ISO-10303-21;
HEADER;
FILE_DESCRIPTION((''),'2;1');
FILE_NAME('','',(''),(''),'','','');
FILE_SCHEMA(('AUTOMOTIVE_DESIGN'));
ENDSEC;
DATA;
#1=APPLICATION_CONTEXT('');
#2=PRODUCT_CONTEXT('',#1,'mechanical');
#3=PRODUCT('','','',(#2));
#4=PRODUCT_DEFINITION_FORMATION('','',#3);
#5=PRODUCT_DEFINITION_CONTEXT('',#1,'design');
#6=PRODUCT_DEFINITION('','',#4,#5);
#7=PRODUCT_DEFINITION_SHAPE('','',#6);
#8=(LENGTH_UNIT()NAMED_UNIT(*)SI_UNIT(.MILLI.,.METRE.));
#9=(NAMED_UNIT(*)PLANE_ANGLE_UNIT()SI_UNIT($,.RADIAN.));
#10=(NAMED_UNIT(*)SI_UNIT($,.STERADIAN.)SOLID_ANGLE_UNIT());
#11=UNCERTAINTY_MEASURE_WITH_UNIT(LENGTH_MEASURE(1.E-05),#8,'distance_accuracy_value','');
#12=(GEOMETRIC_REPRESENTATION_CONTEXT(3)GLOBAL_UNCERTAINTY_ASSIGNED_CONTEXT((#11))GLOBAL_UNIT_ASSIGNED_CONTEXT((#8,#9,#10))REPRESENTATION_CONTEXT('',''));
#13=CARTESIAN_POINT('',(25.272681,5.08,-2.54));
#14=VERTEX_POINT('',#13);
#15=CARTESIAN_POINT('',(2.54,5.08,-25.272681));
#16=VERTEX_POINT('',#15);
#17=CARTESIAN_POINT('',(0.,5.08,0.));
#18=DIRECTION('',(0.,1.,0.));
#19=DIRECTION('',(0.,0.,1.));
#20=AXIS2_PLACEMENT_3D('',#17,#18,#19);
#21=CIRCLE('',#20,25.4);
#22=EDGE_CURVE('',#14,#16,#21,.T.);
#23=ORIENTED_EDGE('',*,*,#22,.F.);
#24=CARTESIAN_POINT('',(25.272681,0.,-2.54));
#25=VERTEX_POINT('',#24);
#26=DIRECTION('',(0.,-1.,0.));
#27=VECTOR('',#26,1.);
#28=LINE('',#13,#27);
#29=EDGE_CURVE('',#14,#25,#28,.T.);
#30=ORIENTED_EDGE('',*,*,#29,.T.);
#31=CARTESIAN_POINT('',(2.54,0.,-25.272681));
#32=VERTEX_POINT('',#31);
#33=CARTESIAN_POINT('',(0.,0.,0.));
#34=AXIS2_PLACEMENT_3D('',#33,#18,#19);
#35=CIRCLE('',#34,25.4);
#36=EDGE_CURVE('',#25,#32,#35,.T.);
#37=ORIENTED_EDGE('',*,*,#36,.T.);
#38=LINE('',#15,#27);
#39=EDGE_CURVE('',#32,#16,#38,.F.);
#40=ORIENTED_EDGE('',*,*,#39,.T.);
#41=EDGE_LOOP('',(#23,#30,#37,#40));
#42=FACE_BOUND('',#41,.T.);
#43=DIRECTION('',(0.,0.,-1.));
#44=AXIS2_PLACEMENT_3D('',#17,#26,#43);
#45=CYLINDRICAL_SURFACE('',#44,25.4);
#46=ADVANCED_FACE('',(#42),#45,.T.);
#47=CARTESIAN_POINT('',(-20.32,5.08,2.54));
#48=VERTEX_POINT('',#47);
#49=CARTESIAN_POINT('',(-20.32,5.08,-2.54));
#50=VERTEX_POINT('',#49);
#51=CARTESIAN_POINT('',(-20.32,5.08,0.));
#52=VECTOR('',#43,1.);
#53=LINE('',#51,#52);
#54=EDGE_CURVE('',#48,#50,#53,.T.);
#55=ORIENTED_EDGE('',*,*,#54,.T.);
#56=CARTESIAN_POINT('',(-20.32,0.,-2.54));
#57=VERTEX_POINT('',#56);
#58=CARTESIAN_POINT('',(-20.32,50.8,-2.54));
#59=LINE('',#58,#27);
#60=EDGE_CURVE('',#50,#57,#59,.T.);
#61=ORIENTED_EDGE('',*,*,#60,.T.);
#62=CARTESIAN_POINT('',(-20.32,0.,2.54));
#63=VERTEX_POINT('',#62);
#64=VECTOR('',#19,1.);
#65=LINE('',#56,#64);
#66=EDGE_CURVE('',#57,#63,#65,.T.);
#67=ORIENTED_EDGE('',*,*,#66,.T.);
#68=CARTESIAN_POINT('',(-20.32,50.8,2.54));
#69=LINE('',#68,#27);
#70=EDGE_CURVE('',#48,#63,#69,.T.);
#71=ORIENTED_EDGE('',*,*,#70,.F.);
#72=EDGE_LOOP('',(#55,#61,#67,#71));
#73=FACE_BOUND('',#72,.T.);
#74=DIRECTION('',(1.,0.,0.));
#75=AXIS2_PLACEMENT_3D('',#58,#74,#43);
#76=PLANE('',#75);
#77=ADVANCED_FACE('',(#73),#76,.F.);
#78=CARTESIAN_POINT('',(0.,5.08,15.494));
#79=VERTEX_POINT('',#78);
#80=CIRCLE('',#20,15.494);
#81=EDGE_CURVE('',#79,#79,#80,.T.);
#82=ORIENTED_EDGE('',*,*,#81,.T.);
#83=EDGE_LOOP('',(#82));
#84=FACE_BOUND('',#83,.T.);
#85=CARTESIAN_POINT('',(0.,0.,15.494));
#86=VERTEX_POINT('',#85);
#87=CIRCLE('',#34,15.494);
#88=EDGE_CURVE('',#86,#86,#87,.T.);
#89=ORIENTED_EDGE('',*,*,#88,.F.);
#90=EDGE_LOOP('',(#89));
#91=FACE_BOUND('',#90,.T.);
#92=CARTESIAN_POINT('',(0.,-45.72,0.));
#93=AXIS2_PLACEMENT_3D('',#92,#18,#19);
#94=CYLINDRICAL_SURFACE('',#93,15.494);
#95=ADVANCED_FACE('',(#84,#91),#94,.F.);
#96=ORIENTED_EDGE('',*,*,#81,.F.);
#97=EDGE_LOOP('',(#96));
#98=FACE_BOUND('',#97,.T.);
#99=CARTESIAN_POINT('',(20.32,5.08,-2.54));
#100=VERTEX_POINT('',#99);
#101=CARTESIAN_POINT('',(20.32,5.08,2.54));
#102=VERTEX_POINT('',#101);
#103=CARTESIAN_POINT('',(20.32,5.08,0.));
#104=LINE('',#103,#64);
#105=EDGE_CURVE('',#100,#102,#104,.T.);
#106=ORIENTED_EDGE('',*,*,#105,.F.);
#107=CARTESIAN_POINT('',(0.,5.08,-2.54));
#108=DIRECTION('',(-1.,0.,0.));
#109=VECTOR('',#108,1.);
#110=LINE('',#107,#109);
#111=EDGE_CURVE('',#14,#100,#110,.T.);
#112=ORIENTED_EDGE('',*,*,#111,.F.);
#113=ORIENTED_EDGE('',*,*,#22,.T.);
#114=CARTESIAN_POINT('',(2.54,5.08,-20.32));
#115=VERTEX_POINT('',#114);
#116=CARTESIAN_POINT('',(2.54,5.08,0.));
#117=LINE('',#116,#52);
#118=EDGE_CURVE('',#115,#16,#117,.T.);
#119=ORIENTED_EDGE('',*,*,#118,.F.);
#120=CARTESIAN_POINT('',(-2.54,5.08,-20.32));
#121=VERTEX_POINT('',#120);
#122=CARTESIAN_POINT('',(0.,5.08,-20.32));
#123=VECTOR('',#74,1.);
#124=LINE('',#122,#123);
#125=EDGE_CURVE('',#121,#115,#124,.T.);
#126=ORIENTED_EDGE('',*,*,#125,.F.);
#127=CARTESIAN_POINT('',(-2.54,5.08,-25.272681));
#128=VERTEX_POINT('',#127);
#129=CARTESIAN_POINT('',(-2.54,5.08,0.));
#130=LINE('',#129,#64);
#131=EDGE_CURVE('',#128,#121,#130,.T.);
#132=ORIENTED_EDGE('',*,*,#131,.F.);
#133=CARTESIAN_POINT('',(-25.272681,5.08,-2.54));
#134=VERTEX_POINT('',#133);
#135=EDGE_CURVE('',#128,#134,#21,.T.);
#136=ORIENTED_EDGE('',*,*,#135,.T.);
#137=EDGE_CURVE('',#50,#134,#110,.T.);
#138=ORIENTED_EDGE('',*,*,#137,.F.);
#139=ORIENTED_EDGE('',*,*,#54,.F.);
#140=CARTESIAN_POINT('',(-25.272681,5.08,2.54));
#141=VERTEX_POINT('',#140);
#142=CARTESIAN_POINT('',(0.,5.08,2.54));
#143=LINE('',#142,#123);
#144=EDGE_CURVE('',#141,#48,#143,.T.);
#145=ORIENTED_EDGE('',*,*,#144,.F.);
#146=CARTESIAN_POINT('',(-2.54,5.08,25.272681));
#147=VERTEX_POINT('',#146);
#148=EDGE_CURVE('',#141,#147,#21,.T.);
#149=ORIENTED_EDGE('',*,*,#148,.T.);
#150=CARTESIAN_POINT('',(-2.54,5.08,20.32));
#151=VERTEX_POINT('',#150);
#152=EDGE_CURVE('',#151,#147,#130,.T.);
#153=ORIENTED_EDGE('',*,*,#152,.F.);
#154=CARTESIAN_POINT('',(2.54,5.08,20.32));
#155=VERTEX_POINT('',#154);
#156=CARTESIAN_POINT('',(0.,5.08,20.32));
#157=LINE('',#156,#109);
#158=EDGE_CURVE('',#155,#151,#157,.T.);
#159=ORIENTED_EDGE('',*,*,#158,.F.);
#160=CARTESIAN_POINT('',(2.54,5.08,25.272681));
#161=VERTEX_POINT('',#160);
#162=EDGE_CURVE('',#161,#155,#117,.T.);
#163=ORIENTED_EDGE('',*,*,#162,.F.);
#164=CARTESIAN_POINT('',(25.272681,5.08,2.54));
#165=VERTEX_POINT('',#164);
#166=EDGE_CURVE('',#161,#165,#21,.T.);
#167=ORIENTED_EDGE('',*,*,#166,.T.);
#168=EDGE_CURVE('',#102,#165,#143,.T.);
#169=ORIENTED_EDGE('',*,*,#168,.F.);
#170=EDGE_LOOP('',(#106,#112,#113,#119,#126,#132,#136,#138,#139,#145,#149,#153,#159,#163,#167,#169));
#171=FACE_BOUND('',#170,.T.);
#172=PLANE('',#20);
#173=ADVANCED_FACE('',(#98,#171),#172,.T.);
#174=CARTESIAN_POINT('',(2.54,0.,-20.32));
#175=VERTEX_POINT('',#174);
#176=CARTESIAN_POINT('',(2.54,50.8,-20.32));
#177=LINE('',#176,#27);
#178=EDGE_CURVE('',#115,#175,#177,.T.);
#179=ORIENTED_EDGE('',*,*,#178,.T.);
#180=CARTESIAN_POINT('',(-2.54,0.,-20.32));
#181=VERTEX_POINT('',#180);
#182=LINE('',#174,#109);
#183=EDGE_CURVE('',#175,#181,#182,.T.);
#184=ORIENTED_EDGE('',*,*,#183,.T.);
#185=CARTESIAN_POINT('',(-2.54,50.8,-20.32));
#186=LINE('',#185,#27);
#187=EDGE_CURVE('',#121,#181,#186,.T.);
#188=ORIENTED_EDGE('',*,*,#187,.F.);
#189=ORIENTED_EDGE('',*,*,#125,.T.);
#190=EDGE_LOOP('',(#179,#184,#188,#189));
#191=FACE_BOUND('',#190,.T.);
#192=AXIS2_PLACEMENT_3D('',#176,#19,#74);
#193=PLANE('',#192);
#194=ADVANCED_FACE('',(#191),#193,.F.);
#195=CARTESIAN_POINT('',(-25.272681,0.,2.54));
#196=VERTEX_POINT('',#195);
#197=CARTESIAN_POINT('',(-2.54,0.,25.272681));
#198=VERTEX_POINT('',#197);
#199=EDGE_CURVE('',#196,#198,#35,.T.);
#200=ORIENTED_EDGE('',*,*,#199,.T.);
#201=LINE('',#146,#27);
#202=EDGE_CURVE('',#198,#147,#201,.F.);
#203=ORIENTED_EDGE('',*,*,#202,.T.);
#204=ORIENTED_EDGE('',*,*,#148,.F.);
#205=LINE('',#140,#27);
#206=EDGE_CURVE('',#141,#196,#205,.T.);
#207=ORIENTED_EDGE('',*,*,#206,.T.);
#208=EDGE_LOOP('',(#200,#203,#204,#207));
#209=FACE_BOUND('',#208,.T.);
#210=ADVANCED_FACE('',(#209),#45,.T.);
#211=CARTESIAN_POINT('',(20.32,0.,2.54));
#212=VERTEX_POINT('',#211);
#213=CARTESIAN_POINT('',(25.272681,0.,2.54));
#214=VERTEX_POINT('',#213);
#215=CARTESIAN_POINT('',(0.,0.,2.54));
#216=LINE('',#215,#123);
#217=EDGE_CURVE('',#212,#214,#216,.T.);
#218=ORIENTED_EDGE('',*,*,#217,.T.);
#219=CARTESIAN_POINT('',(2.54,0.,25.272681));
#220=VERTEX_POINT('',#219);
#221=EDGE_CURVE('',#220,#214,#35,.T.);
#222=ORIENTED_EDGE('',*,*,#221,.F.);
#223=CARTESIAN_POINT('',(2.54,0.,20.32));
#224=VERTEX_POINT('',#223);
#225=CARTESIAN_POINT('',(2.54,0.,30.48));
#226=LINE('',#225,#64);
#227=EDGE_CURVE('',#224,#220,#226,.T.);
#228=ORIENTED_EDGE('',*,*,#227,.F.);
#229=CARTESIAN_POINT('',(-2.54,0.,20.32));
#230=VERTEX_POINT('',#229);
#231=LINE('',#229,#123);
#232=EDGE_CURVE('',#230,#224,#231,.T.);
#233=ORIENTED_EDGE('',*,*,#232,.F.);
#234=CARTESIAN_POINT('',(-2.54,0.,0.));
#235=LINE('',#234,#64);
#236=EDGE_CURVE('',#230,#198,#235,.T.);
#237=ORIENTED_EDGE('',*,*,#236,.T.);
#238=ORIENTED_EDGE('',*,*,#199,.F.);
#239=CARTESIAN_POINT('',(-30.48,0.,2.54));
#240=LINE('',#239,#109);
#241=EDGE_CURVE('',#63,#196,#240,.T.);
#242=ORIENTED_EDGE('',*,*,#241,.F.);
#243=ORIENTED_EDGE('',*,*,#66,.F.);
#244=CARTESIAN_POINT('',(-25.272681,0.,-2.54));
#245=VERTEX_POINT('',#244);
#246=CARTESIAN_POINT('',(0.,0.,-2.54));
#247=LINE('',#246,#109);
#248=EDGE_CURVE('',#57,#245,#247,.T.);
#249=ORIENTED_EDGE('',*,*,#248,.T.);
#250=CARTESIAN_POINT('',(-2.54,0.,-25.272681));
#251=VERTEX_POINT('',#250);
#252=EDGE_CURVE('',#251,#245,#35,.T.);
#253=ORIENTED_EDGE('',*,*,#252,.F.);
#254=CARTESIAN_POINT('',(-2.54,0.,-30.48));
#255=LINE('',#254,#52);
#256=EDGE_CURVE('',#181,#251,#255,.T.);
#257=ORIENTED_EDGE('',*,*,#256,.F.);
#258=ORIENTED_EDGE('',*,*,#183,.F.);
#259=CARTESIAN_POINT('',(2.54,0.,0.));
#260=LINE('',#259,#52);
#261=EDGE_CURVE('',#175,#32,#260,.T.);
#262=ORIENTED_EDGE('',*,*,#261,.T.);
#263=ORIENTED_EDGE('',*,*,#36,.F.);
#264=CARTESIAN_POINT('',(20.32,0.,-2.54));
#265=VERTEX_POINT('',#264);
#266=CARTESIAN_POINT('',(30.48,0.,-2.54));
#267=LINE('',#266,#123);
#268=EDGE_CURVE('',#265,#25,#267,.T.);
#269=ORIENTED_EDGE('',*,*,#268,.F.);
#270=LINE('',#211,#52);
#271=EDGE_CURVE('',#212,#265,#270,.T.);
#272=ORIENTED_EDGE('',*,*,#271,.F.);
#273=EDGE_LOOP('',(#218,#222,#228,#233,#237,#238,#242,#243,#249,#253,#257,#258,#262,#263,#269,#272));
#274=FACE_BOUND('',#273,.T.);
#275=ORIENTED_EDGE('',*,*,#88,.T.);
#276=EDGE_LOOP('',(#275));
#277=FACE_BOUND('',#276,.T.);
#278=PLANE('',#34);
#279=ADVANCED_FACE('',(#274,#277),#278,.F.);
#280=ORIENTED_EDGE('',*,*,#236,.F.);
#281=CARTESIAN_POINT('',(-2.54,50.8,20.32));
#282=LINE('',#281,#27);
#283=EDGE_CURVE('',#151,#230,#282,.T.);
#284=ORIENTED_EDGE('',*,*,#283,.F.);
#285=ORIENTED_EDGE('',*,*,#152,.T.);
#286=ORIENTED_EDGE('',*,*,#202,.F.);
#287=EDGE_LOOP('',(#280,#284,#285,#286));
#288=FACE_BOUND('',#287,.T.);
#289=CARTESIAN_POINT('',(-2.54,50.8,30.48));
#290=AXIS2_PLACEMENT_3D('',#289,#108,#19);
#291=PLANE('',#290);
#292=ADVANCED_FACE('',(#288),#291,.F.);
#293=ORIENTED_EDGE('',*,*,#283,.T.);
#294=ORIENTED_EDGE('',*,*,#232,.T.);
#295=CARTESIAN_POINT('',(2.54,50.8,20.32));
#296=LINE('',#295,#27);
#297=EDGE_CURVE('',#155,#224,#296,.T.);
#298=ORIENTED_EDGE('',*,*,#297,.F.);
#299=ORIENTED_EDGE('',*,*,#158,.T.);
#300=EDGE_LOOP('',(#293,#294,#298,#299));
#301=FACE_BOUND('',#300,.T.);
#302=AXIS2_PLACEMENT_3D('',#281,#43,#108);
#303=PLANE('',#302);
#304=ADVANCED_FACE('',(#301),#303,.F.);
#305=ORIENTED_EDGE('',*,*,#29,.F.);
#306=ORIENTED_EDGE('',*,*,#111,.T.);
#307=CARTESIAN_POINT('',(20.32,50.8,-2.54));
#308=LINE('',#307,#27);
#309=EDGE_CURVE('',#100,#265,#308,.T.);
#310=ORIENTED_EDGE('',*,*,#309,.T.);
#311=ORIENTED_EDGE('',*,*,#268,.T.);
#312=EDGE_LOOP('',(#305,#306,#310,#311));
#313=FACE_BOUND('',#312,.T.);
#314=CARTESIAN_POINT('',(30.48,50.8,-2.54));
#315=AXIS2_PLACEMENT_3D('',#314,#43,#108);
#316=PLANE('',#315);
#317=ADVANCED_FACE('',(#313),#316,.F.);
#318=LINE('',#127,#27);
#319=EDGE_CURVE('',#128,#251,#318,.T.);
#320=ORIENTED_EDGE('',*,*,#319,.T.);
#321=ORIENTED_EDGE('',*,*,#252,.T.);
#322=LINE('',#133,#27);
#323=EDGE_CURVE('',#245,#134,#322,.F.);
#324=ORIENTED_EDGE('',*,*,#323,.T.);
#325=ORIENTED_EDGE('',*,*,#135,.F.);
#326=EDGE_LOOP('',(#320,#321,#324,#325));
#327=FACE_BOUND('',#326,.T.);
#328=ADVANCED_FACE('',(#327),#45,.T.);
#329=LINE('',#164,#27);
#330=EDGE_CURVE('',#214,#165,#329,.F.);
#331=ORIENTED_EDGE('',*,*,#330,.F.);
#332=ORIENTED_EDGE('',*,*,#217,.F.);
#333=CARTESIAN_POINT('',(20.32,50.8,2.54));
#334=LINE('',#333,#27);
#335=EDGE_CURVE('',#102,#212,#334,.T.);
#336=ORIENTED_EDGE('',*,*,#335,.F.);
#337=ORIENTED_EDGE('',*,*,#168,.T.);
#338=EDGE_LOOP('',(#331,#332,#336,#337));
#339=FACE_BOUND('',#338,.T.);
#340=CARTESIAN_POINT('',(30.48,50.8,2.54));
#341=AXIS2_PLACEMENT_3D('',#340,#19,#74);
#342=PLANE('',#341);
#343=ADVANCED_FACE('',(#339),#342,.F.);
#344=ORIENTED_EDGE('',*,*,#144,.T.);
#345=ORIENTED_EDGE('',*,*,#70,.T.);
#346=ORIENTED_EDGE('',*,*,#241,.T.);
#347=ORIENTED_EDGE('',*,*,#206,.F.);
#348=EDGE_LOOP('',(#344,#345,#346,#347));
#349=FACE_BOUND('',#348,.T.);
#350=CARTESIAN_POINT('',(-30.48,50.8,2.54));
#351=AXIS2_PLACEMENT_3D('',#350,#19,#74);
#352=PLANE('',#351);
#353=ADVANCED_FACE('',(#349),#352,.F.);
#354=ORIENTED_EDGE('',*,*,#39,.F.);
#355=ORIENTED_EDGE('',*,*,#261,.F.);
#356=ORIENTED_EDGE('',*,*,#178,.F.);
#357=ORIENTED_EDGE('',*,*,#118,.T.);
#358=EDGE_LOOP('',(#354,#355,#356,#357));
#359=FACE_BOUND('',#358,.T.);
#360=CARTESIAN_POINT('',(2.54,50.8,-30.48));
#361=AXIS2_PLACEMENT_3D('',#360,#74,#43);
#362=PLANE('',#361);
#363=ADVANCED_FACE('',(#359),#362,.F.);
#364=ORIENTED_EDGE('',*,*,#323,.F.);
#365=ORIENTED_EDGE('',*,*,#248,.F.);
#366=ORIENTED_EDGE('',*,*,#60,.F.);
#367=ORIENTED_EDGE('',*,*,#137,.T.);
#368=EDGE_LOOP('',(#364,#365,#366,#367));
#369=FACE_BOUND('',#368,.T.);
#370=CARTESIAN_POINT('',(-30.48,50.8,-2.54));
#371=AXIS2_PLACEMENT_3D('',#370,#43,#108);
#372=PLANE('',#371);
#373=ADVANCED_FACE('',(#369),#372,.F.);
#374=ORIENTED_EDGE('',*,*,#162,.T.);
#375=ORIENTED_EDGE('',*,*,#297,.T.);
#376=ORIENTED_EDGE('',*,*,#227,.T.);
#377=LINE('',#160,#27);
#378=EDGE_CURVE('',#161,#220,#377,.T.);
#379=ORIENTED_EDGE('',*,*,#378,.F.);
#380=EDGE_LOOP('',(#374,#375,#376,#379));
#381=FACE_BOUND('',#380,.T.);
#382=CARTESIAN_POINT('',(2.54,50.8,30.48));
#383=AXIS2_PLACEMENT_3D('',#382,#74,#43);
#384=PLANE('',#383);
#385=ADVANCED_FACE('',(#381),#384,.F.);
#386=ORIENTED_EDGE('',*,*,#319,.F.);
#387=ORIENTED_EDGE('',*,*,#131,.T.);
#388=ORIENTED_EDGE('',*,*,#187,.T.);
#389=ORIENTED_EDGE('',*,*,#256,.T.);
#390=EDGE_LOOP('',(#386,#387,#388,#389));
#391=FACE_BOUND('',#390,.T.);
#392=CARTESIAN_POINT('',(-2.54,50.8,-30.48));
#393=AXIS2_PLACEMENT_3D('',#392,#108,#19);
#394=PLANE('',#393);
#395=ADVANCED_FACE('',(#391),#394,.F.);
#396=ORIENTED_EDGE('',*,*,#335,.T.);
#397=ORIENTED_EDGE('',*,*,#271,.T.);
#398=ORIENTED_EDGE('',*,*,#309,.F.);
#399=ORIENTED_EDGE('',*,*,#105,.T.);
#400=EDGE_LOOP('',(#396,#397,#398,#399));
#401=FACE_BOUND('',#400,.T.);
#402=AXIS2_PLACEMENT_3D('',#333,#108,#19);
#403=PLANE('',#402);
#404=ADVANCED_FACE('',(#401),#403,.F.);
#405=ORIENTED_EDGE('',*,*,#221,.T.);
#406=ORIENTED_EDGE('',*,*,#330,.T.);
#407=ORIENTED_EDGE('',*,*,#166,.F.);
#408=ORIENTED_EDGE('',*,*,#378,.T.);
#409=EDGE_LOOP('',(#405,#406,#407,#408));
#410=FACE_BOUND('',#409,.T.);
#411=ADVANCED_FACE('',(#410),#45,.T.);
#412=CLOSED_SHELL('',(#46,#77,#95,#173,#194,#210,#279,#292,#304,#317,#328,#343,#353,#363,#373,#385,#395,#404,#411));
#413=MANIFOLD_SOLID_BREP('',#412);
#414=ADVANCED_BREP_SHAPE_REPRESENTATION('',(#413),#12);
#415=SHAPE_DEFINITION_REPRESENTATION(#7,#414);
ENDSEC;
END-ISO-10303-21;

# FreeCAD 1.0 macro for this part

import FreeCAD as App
import Part
import Sketcher

V = App.Vector
Q = App.Units.Quantity


def add_polygon(sketch, points):
    """Adds a closed chain of lines whose ends are joined by coincident constraints."""
    first, n = sketch.GeometryCount, len(points)
    for a, b in zip(points, points[1:] + points[:1]):
        sketch.addGeometry(Part.LineSegment(App.Vector(*a, 0), App.Vector(*b, 0)), False)
    for i in range(n):
        sketch.addConstraint(Sketcher.Constraint("Coincident", first + i, 2, first + (i + 1) % n, 1))

doc = App.newDocument("Part")
body = doc.addObject("PartDesign::Body", "Body")

# Sketch on XZ plane
sketch1 = doc.addObject("Sketcher::SketchObject", "Sketch")
body.addObject(sketch1)
sketch1.AttachmentSupport = (doc.XZ_Plane, [""])
sketch1.MapMode = "FlatFace"
sketch1.addGeometry(Part.Circle(V(0, 0, 0), V(0, 0, 1), 25), False)
sketch1.addConstraint(Sketcher.Constraint("Coincident", 0, 3, -1, 1))
sketch1.addConstraint(Sketcher.Constraint("Diameter", 0, Q("2 in")))
pad1 = doc.addObject("PartDesign::Pad", "Pad")
body.addObject(pad1)
pad1.Profile = sketch1
pad1.Length = Q("0.2 in")
pad1.Reversed = True

# Sketch on XZ plane
sketch2 = doc.addObject("Sketcher::SketchObject", "Sketch001")
body.addObject(sketch2)
sketch2.AttachmentSupport = (doc.XZ_Plane, [""])
sketch2.MapMode = "FlatFace"
sketch2.AttachmentOffset = App.Placement(V(0, 0, -0.2 * 25.4), App.Rotation())
sketch2.addGeometry(Part.Circle(V(0, 0, 0), V(0, 0, 1), 15), False)
sketch2.addConstraint(Sketcher.Constraint("Coincident", 0, 3, -1, 1))
sketch2.addConstraint(Sketcher.Constraint("Diameter", 0, Q("1.22 in")))
pocket1 = doc.addObject("PartDesign::Pocket", "Pocket")
body.addObject(pocket1)
pocket1.Profile = sketch2
pocket1.Length = Q("2 in")
pocket1.Reversed = True

# Sketch on XZ plane
sketch3 = doc.addObject("Sketcher::SketchObject", "Sketch002")
body.addObject(sketch3)
sketch3.AttachmentSupport = (doc.XZ_Plane, [""])
sketch3.MapMode = "FlatFace"
add_polygon(sketch3, [(-3, -20), (-3, -30), (3, -30), (3, -20)])  # lines 0-3
sketch3.addConstraint(Sketcher.Constraint("Vertical", 0))
sketch3.addConstraint(Sketcher.Constraint("Horizontal", 1))
sketch3.addConstraint(Sketcher.Constraint("Vertical", 2))
sketch3.addConstraint(Sketcher.Constraint("Horizontal", 3))
sketch3.addConstraint(Sketcher.Constraint("DistanceX", 1, 1, 1, 2, Q("0.2 in")))
sketch3.addConstraint(Sketcher.Constraint("DistanceY", 0, 2, 0, 1, Q("0.4 in")))
sketch3.addConstraint(Sketcher.Constraint("DistanceX", 0, 2, -1, 1, Q("0.1 in")))
sketch3.addConstraint(Sketcher.Constraint("DistanceY", 0, 2, -1, 1, Q("1.2 in")))
pocket2 = doc.addObject("PartDesign::Pocket", "Pocket001")
body.addObject(pocket2)
pocket2.Profile = sketch3
pocket2.Length = Q("2 in")
doc.recompute()

polarpattern = doc.addObject("PartDesign::PolarPattern", "PolarPattern")
body.addObject(polarpattern)
polarpattern.Originals = [pocket2]
polarpattern.Axis = (doc.Y_Axis, [""])
polarpattern.Angle = 360
polarpattern.Occurrences = 4
body.Tip = polarpattern

doc.recompute()
